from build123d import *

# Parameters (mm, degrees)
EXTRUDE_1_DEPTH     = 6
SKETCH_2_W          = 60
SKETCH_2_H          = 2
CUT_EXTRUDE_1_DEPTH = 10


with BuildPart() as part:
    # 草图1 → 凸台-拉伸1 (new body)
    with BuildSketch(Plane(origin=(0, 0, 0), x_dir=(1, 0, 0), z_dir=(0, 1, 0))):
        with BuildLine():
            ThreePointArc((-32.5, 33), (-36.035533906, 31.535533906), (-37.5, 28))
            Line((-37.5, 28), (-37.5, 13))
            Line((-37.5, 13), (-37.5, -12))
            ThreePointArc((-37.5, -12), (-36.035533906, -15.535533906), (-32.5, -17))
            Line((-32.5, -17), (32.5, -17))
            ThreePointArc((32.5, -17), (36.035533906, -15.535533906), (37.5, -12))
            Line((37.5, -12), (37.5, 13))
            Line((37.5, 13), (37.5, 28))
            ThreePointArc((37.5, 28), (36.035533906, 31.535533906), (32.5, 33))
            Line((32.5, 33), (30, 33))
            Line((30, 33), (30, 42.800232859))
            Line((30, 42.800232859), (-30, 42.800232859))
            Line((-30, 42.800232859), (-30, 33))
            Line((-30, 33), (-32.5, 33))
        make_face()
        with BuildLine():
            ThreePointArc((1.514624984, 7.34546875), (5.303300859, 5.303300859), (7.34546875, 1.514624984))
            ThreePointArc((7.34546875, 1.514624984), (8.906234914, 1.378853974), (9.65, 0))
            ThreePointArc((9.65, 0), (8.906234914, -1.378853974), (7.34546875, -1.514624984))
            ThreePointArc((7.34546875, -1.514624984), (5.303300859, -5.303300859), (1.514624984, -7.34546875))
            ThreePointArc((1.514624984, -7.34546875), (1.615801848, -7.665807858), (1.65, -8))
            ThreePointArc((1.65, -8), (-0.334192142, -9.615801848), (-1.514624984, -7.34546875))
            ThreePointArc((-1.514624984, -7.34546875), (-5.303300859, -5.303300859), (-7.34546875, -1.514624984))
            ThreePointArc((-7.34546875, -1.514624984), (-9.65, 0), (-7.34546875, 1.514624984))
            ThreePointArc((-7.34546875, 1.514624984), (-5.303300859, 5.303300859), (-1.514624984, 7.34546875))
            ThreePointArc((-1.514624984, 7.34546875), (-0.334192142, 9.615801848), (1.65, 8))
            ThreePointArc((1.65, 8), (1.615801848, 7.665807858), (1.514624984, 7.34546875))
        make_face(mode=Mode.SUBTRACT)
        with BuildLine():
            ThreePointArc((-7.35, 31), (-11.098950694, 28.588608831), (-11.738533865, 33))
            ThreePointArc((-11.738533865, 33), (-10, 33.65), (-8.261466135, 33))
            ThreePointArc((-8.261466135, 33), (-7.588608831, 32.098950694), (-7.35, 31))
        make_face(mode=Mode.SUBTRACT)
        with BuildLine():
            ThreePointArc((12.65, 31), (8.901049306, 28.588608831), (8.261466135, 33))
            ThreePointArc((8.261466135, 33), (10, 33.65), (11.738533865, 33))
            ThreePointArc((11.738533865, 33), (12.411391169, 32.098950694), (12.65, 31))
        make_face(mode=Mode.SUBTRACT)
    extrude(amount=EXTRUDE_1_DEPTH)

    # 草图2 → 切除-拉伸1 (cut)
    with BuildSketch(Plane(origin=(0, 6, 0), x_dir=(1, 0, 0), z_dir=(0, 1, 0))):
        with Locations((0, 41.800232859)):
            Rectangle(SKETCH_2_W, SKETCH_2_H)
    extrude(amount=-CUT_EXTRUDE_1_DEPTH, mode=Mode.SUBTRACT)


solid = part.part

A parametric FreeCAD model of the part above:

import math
import FreeCAD as App
import Part
import Sketcher
from FreeCAD import Vector
Q = App.Units.Quantity

doc = App.newDocument("Part")
body = doc.addObject("PartDesign::Body", "Body")

sketch1 = body.newObject("Sketcher::SketchObject", "Sketch")
sketch1.AttachmentSupport = (doc.getObject("XZ_Plane"), [""])
sketch1.MapMode = "FlatFace"
sketch1.addGeometry(Part.ArcOfCircle(Part.Circle(Vector(-32.5, -28, 0), Vector(0, 0, 1), 5), math.radians(180), math.radians(270)), False)
sketch1.addGeometry(Part.LineSegment(Vector(-37.5, -28, 0), Vector(-37.5, 12, 0)), False)
sketch1.addGeometry(Part.ArcOfCircle(Part.Circle(Vector(-32.5, 12, 0), Vector(0, 0, 1), 5), math.radians(90), math.radians(180)), False)
sketch1.addGeometry(Part.LineSegment(Vector(-32.5, 17, 0), Vector(32.5, 17, 0)), False)
sketch1.addGeometry(Part.ArcOfCircle(Part.Circle(Vector(32.5, 12, 0), Vector(0, 0, 1), 5), math.radians(0), math.radians(90)), False)
sketch1.addGeometry(Part.LineSegment(Vector(37.5, 12, 0), Vector(37.5, -28, 0)), False)
sketch1.addGeometry(Part.ArcOfCircle(Part.Circle(Vector(32.5, -28, 0), Vector(0, 0, 1), 5), math.radians(-90), math.radians(0)), False)
sketch1.addGeometry(Part.LineSegment(Vector(32.5, -33, 0), Vector(30, -33, 0)), False)
sketch1.addGeometry(Part.LineSegment(Vector(30, -33, 0), Vector(30, -42.800233, 0)), False)
sketch1.addGeometry(Part.LineSegment(Vector(30, -42.800233, 0), Vector(-30, -42.800233, 0)), False)
sketch1.addGeometry(Part.LineSegment(Vector(-30, -42.800233, 0), Vector(-30, -33, 0)), False)
sketch1.addGeometry(Part.LineSegment(Vector(-30, -33, 0), Vector(-32.5, -33, 0)), False)
sketch1.addGeometry(Part.ArcOfCircle(Part.Circle(Vector(0, -8, 0), Vector(0, 0, 1), 1.65), math.radians(0), math.radians(23.371143)), False)
sketch1.addGeometry(Part.ArcOfCircle(Part.Circle(Vector(0, 0, 0), Vector(0, 0, 1), 7.5), math.radians(-78.348987), math.radians(-11.651013)), False)
sketch1.addGeometry(Part.ArcOfCircle(Part.Circle(Vector(8, 0, 0), Vector(0, 0, 1), 1.65), math.radians(-113.371143), math.radians(0)), False)
sketch1.addGeometry(Part.ArcOfCircle(Part.Circle(Vector(8, 0, 0), Vector(0, 0, 1), 1.65), math.radians(0), math.radians(113.371143)), False)
sketch1.addGeometry(Part.ArcOfCircle(Part.Circle(Vector(0, 0, 0), Vector(0, 0, 1), 7.5), math.radians(11.651013), math.radians(78.348987)), False)
sketch1.addGeometry(Part.ArcOfCircle(Part.Circle(Vector(0, 8, 0), Vector(0, 0, 1), 1.65), math.radians(-23.371143), math.radians(0)), False)
sketch1.addGeometry(Part.ArcOfCircle(Part.Circle(Vector(0, 8, 0), Vector(0, 0, 1), 1.65), math.radians(0), math.radians(203.371143)), False)
sketch1.addGeometry(Part.ArcOfCircle(Part.Circle(Vector(0, 0, 0), Vector(0, 0, 1), 7.5), math.radians(101.651013), math.radians(168.348987)), False)
sketch1.addGeometry(Part.ArcOfCircle(Part.Circle(Vector(-8, 0, 0), Vector(0, 0, 1), 1.65), math.radians(66.628857), math.radians(293.371143)), False)
sketch1.addGeometry(Part.ArcOfCircle(Part.Circle(Vector(0, 0, 0), Vector(0, 0, 1), 7.5), math.radians(-168.348987), math.radians(-101.651013)), False)
sketch1.addGeometry(Part.ArcOfCircle(Part.Circle(Vector(0, -8, 0), Vector(0, 0, 1), 1.65), math.radians(156.628857), math.radians(360)), False)
sketch1.addGeometry(Part.ArcOfCircle(Part.Circle(Vector(-10, -31, 0), Vector(0, 0, 1), 2.65), math.radians(-49.000646), math.radians(0)), False)
sketch1.addGeometry(Part.ArcOfCircle(Part.Circle(Vector(-10, -31, 0), Vector(0, 0, 1), 2.65), math.radians(0), math.radians(229.000646)), False)
sketch1.addGeometry(Part.ArcOfCircle(Part.Circle(Vector(-10, -31, 0), Vector(0, 0, 1), 2.65), math.radians(-130.999354), math.radians(-49.000646)), False)
sketch1.addGeometry(Part.ArcOfCircle(Part.Circle(Vector(10, -31, 0), Vector(0, 0, 1), 2.65), math.radians(-49.000646), math.radians(0)), False)
sketch1.addGeometry(Part.ArcOfCircle(Part.Circle(Vector(10, -31, 0), Vector(0, 0, 1), 2.65), math.radians(0), math.radians(229.000646)), False)
sketch1.addGeometry(Part.ArcOfCircle(Part.Circle(Vector(10, -31, 0), Vector(0, 0, 1), 2.65), math.radians(-130.999354), math.radians(-49.000646)), False)
sketch1.addConstraint(Sketcher.Constraint("Tangent", 0, 1, 1, 1))
sketch1.addConstraint(Sketcher.Constraint("Tangent", 1, 2, 2, 2))
sketch1.addConstraint(Sketcher.Constraint("Tangent", 2, 1, 3, 1))
sketch1.addConstraint(Sketcher.Constraint("Tangent", 3, 2, 4, 2))
sketch1.addConstraint(Sketcher.Constraint("Tangent", 4, 1, 5, 1))
sketch1.addConstraint(Sketcher.Constraint("Tangent", 5, 2, 6, 2))
sketch1.addConstraint(Sketcher.Constraint("Tangent", 6, 1, 7, 1))
sketch1.addConstraint(Sketcher.Constraint("Coincident", 7, 2, 8, 1))
sketch1.addConstraint(Sketcher.Constraint("Coincident", 8, 2, 9, 1))
sketch1.addConstraint(Sketcher.Constraint("Coincident", 9, 2, 10, 1))
sketch1.addConstraint(Sketcher.Constraint("Coincident", 10, 2, 11, 1))
sketch1.addConstraint(Sketcher.Constraint("Tangent", 11, 2, 0, 2))
sketch1.addConstraint(Sketcher.Constraint("Coincident", 12, 2, 13, 1))
sketch1.addConstraint(Sketcher.Constraint("Coincident", 13, 2, 14, 1))
sketch1.addConstraint(Sketcher.Constraint("Tangent", 14, 2, 15, 1))
sketch1.addConstraint(Sketcher.Constraint("Coincident", 15, 2, 16, 1))
sketch1.addConstraint(Sketcher.Constraint("Coincident", 16, 2, 17, 1))
sketch1.addConstraint(Sketcher.Constraint("Tangent", 17, 2, 18, 1))
sketch1.addConstraint(Sketcher.Constraint("Coincident", 18, 2, 19, 1))
sketch1.addConstraint(Sketcher.Constraint("Coincident", 19, 2, 20, 1))
sketch1.addConstraint(Sketcher.Constraint("Coincident", 20, 2, 21, 1))
sketch1.addConstraint(Sketcher.Constraint("Coincident", 21, 2, 22, 1))
sketch1.addConstraint(Sketcher.Constraint("Tangent", 22, 2, 12, 1))
sketch1.addConstraint(Sketcher.Constraint("Tangent", 23, 2, 24, 1))
sketch1.addConstraint(Sketcher.Constraint("Tangent", 24, 2, 25, 1))
sketch1.addConstraint(Sketcher.Constraint("Tangent", 25, 2, 23, 1))
sketch1.addConstraint(Sketcher.Constraint("Tangent", 26, 2, 27, 1))
sketch1.addConstraint(Sketcher.Constraint("Tangent", 27, 2, 28, 1))
sketch1.addConstraint(Sketcher.Constraint("Tangent", 28, 2, 26, 1))
sketch1.addConstraint(Sketcher.Constraint("Vertical", 1))
sketch1.addConstraint(Sketcher.Constraint("Horizontal", 3))
sketch1.addConstraint(Sketcher.Constraint("Vertical", 5))
sketch1.addConstraint(Sketcher.Constraint("Horizontal", 7))
sketch1.addConstraint(Sketcher.Constraint("Vertical", 8))
sketch1.addConstraint(Sketcher.Constraint("Horizontal", 9))
sketch1.addConstraint(Sketcher.Constraint("Vertical", 10))
sketch1.addConstraint(Sketcher.Constraint("Horizontal", 11))
sketch1.addConstraint(Sketcher.Constraint("Coincident", 13, 3, -1, 1))
sketch1.addConstraint(Sketcher.Constraint("Coincident", 16, 3, -1, 1))
sketch1.addConstraint(Sketcher.Constraint("Coincident", 19, 3, -1, 1))
sketch1.addConstraint(Sketcher.Constraint("Coincident", 21, 3, -1, 1))
sketch1.addConstraint(Sketcher.Constraint("Equal", 0, 2))
sketch1.addConstraint(Sketcher.Constraint("Equal", 2, 4))
sketch1.addConstraint(Sketcher.Constraint("Equal", 4, 6))
sketch1.addConstraint(Sketcher.Constraint("Equal", 12, 14))
sketch1.addConstraint(Sketcher.Constraint("Equal", 14, 15))
sketch1.addConstraint(Sketcher.Constraint("Equal", 13, 16))
sketch1.addConstraint(Sketcher.Constraint("Equal", 15, 17))
sketch1.addConstraint(Sketcher.Constraint("Equal", 17, 18))
sketch1.addConstraint(Sketcher.Constraint("Equal", 16, 19))
sketch1.addConstraint(Sketcher.Constraint("Equal", 18, 20))
sketch1.addConstraint(Sketcher.Constraint("Equal", 19, 21))
sketch1.addConstraint(Sketcher.Constraint("Equal", 20, 22))
sketch1.addConstraint(Sketcher.Constraint("Equal", 25, 26))
sketch1.addConstraint(Sketcher.Constraint("Symmetric", 12, 3, 17, 3, -1, 1))
sketch1.addConstraint(Sketcher.Constraint("Symmetric", 14, 3, 20, 3, -1, 1))
sketch1.addConstraint(Sketcher.Constraint("Symmetric", 0, 3, 6, 3, -2))
sketch1.addConstraint(Sketcher.Constraint("Symmetric", 23, 3, 26, 3, -2))
sketch1.addConstraint(Sketcher.Constraint("Symmetric", 17, 2, 22, 2, -1))
sketch1.addConstraint(Sketcher.Constraint("PointOnObject", 14, 3, -1))
sketch1.addConstraint(Sketcher.Constraint("PointOnObject", 14, 2, -1))
sketch1.addConstraint(Sketcher.Constraint("Horizontal", 18, 3, 17, 2))
sketch1.addConstraint(Sketcher.Constraint("Horizontal", 28, 3, 23, 2))
sketch1.addConstraint(Sketcher.Constraint("Horizontal", 11, 2, 24, 2))
sketch1.addConstraint(Sketcher.Constraint("Horizontal", 24, 2, 25, 2))
sketch1.addConstraint(Sketcher.Constraint("Horizontal", 23, 2, 26, 2))
sketch1.addConstraint(Sketcher.Constraint("Horizontal", 25, 2, 27, 2))
sketch1.addConstraint(Sketcher.Constraint("Horizontal", 27, 2, 28, 2))
sketch1.addConstraint(Sketcher.Constraint("Equal", 7, 11))
sketch1.addConstraint(Sketcher.Constraint("Radius", 0, Q("5 mm")))
sketch1.addConstraint(Sketcher.Constraint("Radius", 13, Q("7.5 mm")))
sketch1.addConstraint(Sketcher.Constraint("DistanceX", 3, 1, 3, 2, Q("65 mm")))
sketch1.addConstraint(Sketcher.Constraint("DistanceX", 9, 2, 9, 1, Q("60 mm")))
sketch1.addConstraint(Sketcher.Constraint("DistanceY", 1, 1, 1, 2, Q("40 mm")))
sketch1.addConstraint(Sketcher.Constraint("Radius", 12, Q("1.65 mm")))
sketch1.addConstraint(Sketcher.Constraint("Radius", 23, Q("2.65 mm")))
sketch1.addConstraint(Sketcher.Constraint("DistanceY", 0, 3, -1, 1, Q("28 mm")))
sketch1.addConstraint(Sketcher.Constraint("DistanceY", 12, 3, -1, 1, Q("8 mm")))
sketch1.addConstraint(Sketcher.Constraint("DistanceX", -1, 1, 14, 3, Q("8 mm")))
sketch1.addConstraint(Sketcher.Constraint("DistanceX", 23, 3, -1, 1, Q("10 mm")))
sketch1.addConstraint(Sketcher.Constraint("DistanceY", 23, 3, -1, 1, Q("31 mm")))
sketch1.addConstraint(Sketcher.Constraint("DistanceY", 8, 2, 8, 1, Q("9.800233 mm")))
pad1 = body.newObject("PartDesign::Pad", "Pad")
pad1.Profile = sketch1
pad1.Length = 6
pad1.Reversed = True

sketch2 = body.newObject("Sketcher::SketchObject", "Sketch001")
sketch2.AttachmentSupport = (doc.getObject("XZ_Plane"), [""])
sketch2.MapMode = "FlatFace"
sketch2.AttachmentOffset = App.Placement(Vector(0, 0, -6), App.Rotation())
sketch2.addGeometry(Part.LineSegment(Vector(-30, -42.800233, 0), Vector(-30, -40.800233, 0)), False)
sketch2.addGeometry(Part.LineSegment(Vector(-30, -40.800233, 0), Vector(30, -40.800233, 0)), False)
sketch2.addGeometry(Part.LineSegment(Vector(30, -40.800233, 0), Vector(30, -42.800233, 0)), False)
sketch2.addGeometry(Part.LineSegment(Vector(30, -42.800233, 0), Vector(-30, -42.800233, 0)), False)
sketch2.addConstraint(Sketcher.Constraint("Coincident", 0, 2, 1, 1))
sketch2.addConstraint(Sketcher.Constraint("Coincident", 1, 2, 2, 1))
sketch2.addConstraint(Sketcher.Constraint("Coincident", 2, 2, 3, 1))
sketch2.addConstraint(Sketcher.Constraint("Coincident", 3, 2, 0, 1))
sketch2.addConstraint(Sketcher.Constraint("Vertical", 0))
sketch2.addConstraint(Sketcher.Constraint("Horizontal", 1))
sketch2.addConstraint(Sketcher.Constraint("Vertical", 2))
sketch2.addConstraint(Sketcher.Constraint("Horizontal", 3))
sketch2.addConstraint(Sketcher.Constraint("DistanceX", 1, 1, 1, 2, Q("60 mm")))
sketch2.addConstraint(Sketcher.Constraint("DistanceY", 0, 1, 0, 2, Q("2 mm")))
sketch2.addConstraint(Sketcher.Constraint("DistanceX", 0, 2, -1, 1, Q("30 mm")))
sketch2.addConstraint(Sketcher.Constraint("DistanceY", 0, 2, -1, 1, Q("40.800233 mm")))
pocket1 = body.newObject("PartDesign::Pocket", "Pocket")
pocket1.Profile = sketch2
pocket1.Length = 10
pocket1.Reversed = True

doc.recompute()
